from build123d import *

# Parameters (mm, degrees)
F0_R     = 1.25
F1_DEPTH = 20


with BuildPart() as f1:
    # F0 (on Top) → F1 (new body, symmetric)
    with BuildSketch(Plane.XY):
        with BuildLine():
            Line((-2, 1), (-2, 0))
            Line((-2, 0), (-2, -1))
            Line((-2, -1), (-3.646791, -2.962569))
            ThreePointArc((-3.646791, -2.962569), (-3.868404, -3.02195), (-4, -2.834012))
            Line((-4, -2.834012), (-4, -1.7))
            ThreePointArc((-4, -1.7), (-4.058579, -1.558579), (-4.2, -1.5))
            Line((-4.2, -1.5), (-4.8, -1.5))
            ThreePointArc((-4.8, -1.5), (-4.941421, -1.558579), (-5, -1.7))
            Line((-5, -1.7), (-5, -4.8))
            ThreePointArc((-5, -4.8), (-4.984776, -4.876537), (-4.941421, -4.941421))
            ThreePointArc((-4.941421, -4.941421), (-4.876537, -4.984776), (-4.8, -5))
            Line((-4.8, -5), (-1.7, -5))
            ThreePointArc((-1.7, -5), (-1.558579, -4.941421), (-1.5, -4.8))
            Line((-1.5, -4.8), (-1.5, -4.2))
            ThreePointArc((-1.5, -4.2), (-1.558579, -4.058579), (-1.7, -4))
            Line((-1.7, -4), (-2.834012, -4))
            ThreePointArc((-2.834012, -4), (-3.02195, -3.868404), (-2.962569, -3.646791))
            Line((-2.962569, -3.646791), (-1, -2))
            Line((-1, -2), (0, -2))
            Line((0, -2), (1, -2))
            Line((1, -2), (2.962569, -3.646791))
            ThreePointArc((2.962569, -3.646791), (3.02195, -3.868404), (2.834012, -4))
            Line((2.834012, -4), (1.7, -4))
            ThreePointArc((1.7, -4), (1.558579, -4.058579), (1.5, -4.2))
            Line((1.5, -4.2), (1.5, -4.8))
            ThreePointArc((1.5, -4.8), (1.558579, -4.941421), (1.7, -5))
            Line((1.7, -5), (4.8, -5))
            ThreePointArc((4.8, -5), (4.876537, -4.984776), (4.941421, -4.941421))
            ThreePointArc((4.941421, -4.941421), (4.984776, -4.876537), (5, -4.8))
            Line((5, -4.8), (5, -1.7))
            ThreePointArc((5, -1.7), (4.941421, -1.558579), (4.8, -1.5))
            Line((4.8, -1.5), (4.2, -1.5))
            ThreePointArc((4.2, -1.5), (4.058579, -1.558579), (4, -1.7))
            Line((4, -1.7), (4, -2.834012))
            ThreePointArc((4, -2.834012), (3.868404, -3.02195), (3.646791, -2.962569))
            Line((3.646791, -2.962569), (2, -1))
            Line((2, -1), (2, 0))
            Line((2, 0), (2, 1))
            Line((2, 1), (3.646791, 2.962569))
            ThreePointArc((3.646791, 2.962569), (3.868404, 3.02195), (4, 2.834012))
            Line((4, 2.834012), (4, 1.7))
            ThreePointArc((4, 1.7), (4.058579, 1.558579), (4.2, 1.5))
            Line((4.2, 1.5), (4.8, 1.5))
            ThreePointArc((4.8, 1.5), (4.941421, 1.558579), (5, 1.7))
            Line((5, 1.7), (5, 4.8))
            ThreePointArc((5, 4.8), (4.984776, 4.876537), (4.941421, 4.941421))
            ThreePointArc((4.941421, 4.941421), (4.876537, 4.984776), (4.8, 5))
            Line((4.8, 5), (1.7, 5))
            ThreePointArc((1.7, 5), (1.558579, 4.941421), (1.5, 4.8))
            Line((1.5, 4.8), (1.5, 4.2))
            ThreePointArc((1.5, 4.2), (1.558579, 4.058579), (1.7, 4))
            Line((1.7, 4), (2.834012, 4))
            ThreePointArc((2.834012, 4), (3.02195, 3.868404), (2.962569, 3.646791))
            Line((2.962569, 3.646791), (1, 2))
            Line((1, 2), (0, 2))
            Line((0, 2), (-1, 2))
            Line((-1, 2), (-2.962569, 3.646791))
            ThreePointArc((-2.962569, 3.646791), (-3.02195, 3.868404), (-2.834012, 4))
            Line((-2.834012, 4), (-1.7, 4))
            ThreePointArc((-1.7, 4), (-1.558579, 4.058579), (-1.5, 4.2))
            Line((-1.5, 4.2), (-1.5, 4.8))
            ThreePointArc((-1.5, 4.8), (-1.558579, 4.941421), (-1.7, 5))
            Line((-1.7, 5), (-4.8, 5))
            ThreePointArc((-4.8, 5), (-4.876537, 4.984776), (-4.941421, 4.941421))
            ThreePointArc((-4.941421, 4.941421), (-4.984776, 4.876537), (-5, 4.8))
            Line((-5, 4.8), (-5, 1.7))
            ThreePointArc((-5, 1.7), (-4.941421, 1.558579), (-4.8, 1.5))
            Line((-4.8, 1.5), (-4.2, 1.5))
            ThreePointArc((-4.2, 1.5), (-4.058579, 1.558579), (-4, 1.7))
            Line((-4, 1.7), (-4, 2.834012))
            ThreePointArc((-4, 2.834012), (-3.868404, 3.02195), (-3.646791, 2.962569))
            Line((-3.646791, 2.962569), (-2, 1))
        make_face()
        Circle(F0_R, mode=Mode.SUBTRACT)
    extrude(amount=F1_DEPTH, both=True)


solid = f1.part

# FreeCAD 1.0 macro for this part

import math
import FreeCAD as App
import Part
import Sketcher

V = App.Vector
Q = App.Units.Quantity

doc = App.newDocument("Part")
body = doc.addObject("PartDesign::Body", "Body")

sketch1 = body.newObject("Sketcher::SketchObject", "Sketch")
sketch1.AttachmentSupport = (doc.getObject("XY_Plane"), [""])
sketch1.MapMode = "FlatFace"
sketch1.addGeometry(Part.LineSegment(V(-2, 1, 0), V(-2, -1, 0)), False)
sketch1.addGeometry(Part.LineSegment(V(-2, -1, 0), V(-3.65, -2.96, 0)), False)
sketch1.addGeometry(Part.ArcOfCircle(Part.Circle(V(-3.8, -2.83, 0), V(0, 0, 1), 0.2), math.radians(-180), math.radians(-40)), False)
sketch1.addGeometry(Part.LineSegment(V(-4, -2.83, 0), V(-4, -1.7, 0)), False)
sketch1.addGeometry(Part.ArcOfCircle(Part.Circle(V(-4.2, -1.7, 0), V(0, 0, 1), 0.2), math.radians(0), math.radians(90)), False)
sketch1.addGeometry(Part.LineSegment(V(-4.2, -1.5, 0), V(-4.8, -1.5, 0)), False)
sketch1.addGeometry(Part.ArcOfCircle(Part.Circle(V(-4.8, -1.7, 0), V(0, 0, 1), 0.2), math.radians(90), math.radians(180)), False)
sketch1.addGeometry(Part.LineSegment(V(-5, -1.7, 0), V(-5, -4.8, 0)), False)
sketch1.addGeometry(Part.ArcOfCircle(Part.Circle(V(-4.8, -4.8, 0), V(0, 0, 1), 0.2), math.radians(180), math.radians(225)), False)
sketch1.addGeometry(Part.ArcOfCircle(Part.Circle(V(-4.8, -4.8, 0), V(0, 0, 1), 0.2), math.radians(-135), math.radians(-90)), False)
sketch1.addGeometry(Part.LineSegment(V(-4.8, -5, 0), V(-1.7, -5, 0)), False)
sketch1.addGeometry(Part.ArcOfCircle(Part.Circle(V(-1.7, -4.8, 0), V(0, 0, 1), 0.2), math.radians(-90), math.radians(0)), False)
sketch1.addGeometry(Part.LineSegment(V(-1.5, -4.8, 0), V(-1.5, -4.2, 0)), False)
sketch1.addGeometry(Part.ArcOfCircle(Part.Circle(V(-1.7, -4.2, 0), V(0, 0, 1), 0.2), math.radians(0), math.radians(90)), False)
sketch1.addGeometry(Part.LineSegment(V(-1.7, -4, 0), V(-2.83, -4, 0)), False)
sketch1.addGeometry(Part.ArcOfCircle(Part.Circle(V(-2.83, -3.8, 0), V(0, 0, 1), 0.2), math.radians(130), math.radians(270)), False)
sketch1.addGeometry(Part.LineSegment(V(-2.96, -3.65, 0), V(-1, -2, 0)), False)
sketch1.addGeometry(Part.LineSegment(V(-1, -2, 0), V(1, -2, 0)), False)
sketch1.addGeometry(Part.LineSegment(V(1, -2, 0), V(2.96, -3.65, 0)), False)
sketch1.addGeometry(Part.ArcOfCircle(Part.Circle(V(2.83, -3.8, 0), V(0, 0, 1), 0.2), math.radians(-90), math.radians(50)), False)
sketch1.addGeometry(Part.LineSegment(V(2.83, -4, 0), V(1.7, -4, 0)), False)
sketch1.addGeometry(Part.ArcOfCircle(Part.Circle(V(1.7, -4.2, 0), V(0, 0, 1), 0.2), math.radians(90), math.radians(180)), False)
sketch1.addGeometry(Part.LineSegment(V(1.5, -4.2, 0), V(1.5, -4.8, 0)), False)
sketch1.addGeometry(Part.ArcOfCircle(Part.Circle(V(1.7, -4.8, 0), V(0, 0, 1), 0.2), math.radians(-180), math.radians(-90)), False)
sketch1.addGeometry(Part.LineSegment(V(1.7, -5, 0), V(4.8, -5, 0)), False)
sketch1.addGeometry(Part.ArcOfCircle(Part.Circle(V(4.8, -4.8, 0), V(0, 0, 1), 0.2), math.radians(-90), math.radians(-45)), False)
sketch1.addGeometry(Part.ArcOfCircle(Part.Circle(V(4.8, -4.8, 0), V(0, 0, 1), 0.2), math.radians(-45), math.radians(0)), False)
sketch1.addGeometry(Part.LineSegment(V(5, -4.8, 0), V(5, -1.7, 0)), False)
sketch1.addGeometry(Part.ArcOfCircle(Part.Circle(V(4.8, -1.7, 0), V(0, 0, 1), 0.2), math.radians(0), math.radians(90)), False)
sketch1.addGeometry(Part.LineSegment(V(4.8, -1.5, 0), V(4.2, -1.5, 0)), False)
sketch1.addGeometry(Part.ArcOfCircle(Part.Circle(V(4.2, -1.7, 0), V(0, 0, 1), 0.2), math.radians(90), math.radians(180)), False)
sketch1.addGeometry(Part.LineSegment(V(4, -1.7, 0), V(4, -2.83, 0)), False)
sketch1.addGeometry(Part.ArcOfCircle(Part.Circle(V(3.8, -2.83, 0), V(0, 0, 1), 0.2), math.radians(-140), math.radians(0)), False)
sketch1.addGeometry(Part.LineSegment(V(3.65, -2.96, 0), V(2, -1, 0)), False)
sketch1.addGeometry(Part.LineSegment(V(2, -1, 0), V(2, 1, 0)), False)
sketch1.addGeometry(Part.LineSegment(V(2, 1, 0), V(3.65, 2.96, 0)), False)
sketch1.addGeometry(Part.ArcOfCircle(Part.Circle(V(3.8, 2.83, 0), V(0, 0, 1), 0.2), math.radians(0), math.radians(140)), False)
sketch1.addGeometry(Part.LineSegment(V(4, 2.83, 0), V(4, 1.7, 0)), False)
sketch1.addGeometry(Part.ArcOfCircle(Part.Circle(V(4.2, 1.7, 0), V(0, 0, 1), 0.2), math.radians(-180), math.radians(-90)), False)
sketch1.addGeometry(Part.LineSegment(V(4.2, 1.5, 0), V(4.8, 1.5, 0)), False)
sketch1.addGeometry(Part.ArcOfCircle(Part.Circle(V(4.8, 1.7, 0), V(0, 0, 1), 0.2), math.radians(-90), math.radians(0)), False)
sketch1.addGeometry(Part.LineSegment(V(5, 1.7, 0), V(5, 4.8, 0)), False)
sketch1.addGeometry(Part.ArcOfCircle(Part.Circle(V(4.8, 4.8, 0), V(0, 0, 1), 0.2), math.radians(0), math.radians(45)), False)
sketch1.addGeometry(Part.ArcOfCircle(Part.Circle(V(4.8, 4.8, 0), V(0, 0, 1), 0.2), math.radians(45), math.radians(90)), False)
sketch1.addGeometry(Part.LineSegment(V(4.8, 5, 0), V(1.7, 5, 0)), False)
sketch1.addGeometry(Part.ArcOfCircle(Part.Circle(V(1.7, 4.8, 0), V(0, 0, 1), 0.2), math.radians(90), math.radians(180)), False)
sketch1.addGeometry(Part.LineSegment(V(1.5, 4.8, 0), V(1.5, 4.2, 0)), False)
sketch1.addGeometry(Part.ArcOfCircle(Part.Circle(V(1.7, 4.2, 0), V(0, 0, 1), 0.2), math.radians(-180), math.radians(-90)), False)
sketch1.addGeometry(Part.LineSegment(V(1.7, 4, 0), V(2.83, 4, 0)), False)
sketch1.addGeometry(Part.ArcOfCircle(Part.Circle(V(2.83, 3.8, 0), V(0, 0, 1), 0.2), math.radians(-50), math.radians(90)), False)
sketch1.addGeometry(Part.LineSegment(V(2.96, 3.65, 0), V(1, 2, 0)), False)
sketch1.addGeometry(Part.LineSegment(V(1, 2, 0), V(-1, 2, 0)), False)
sketch1.addGeometry(Part.LineSegment(V(-1, 2, 0), V(-2.96, 3.65, 0)), False)
sketch1.addGeometry(Part.ArcOfCircle(Part.Circle(V(-2.83, 3.8, 0), V(0, 0, 1), 0.2), math.radians(90), math.radians(230)), False)
sketch1.addGeometry(Part.LineSegment(V(-2.83, 4, 0), V(-1.7, 4, 0)), False)
sketch1.addGeometry(Part.ArcOfCircle(Part.Circle(V(-1.7, 4.2, 0), V(0, 0, 1), 0.2), math.radians(-90), math.radians(0)), False)
sketch1.addGeometry(Part.LineSegment(V(-1.5, 4.2, 0), V(-1.5, 4.8, 0)), False)
sketch1.addGeometry(Part.ArcOfCircle(Part.Circle(V(-1.7, 4.8, 0), V(0, 0, 1), 0.2), math.radians(0), math.radians(90)), False)
sketch1.addGeometry(Part.LineSegment(V(-1.7, 5, 0), V(-4.8, 5, 0)), False)
sketch1.addGeometry(Part.ArcOfCircle(Part.Circle(V(-4.8, 4.8, 0), V(0, 0, 1), 0.2), math.radians(90), math.radians(135)), False)
sketch1.addGeometry(Part.ArcOfCircle(Part.Circle(V(-4.8, 4.8, 0), V(0, 0, 1), 0.2), math.radians(135), math.radians(180)), False)
sketch1.addGeometry(Part.LineSegment(V(-5, 4.8, 0), V(-5, 1.7, 0)), False)
sketch1.addGeometry(Part.ArcOfCircle(Part.Circle(V(-4.8, 1.7, 0), V(0, 0, 1), 0.2), math.radians(-180), math.radians(-90)), False)
sketch1.addGeometry(Part.LineSegment(V(-4.8, 1.5, 0), V(-4.2, 1.5, 0)), False)
sketch1.addGeometry(Part.ArcOfCircle(Part.Circle(V(-4.2, 1.7, 0), V(0, 0, 1), 0.2), math.radians(-90), math.radians(0)), False)
sketch1.addGeometry(Part.LineSegment(V(-4, 1.7, 0), V(-4, 2.83, 0)), False)
sketch1.addGeometry(Part.ArcOfCircle(Part.Circle(V(-3.8, 2.83, 0), V(0, 0, 1), 0.2), math.radians(40), math.radians(180)), False)
sketch1.addGeometry(Part.LineSegment(V(-3.65, 2.96, 0), V(-2, 1, 0)), False)
sketch1.addGeometry(Part.Circle(V(0, 0, 0), V(0, 0, 1), 1.25), False)
sketch1.addConstraint(Sketcher.Constraint("Coincident", 0, 2, 1, 1))
sketch1.addConstraint(Sketcher.Constraint("Tangent", 1, 2, 2, 2))
sketch1.addConstraint(Sketcher.Constraint("Coincident", 2, 1, 3, 1))
sketch1.addConstraint(Sketcher.Constraint("Coincident", 3, 2, 4, 1))
sketch1.addConstraint(Sketcher.Constraint("Coincident", 4, 2, 5, 1))
sketch1.addConstraint(Sketcher.Constraint("Coincident", 5, 2, 6, 1))
sketch1.addConstraint(Sketcher.Constraint("Coincident", 6, 2, 7, 1))
sketch1.addConstraint(Sketcher.Constraint("Coincident", 7, 2, 8, 1))
sketch1.addConstraint(Sketcher.Constraint("Coincident", 8, 2, 9, 1))
sketch1.addConstraint(Sketcher.Constraint("Coincident", 9, 2, 10, 1))
sketch1.addConstraint(Sketcher.Constraint("Coincident", 10, 2, 11, 1))
sketch1.addConstraint(Sketcher.Constraint("Coincident", 11, 2, 12, 1))
sketch1.addConstraint(Sketcher.Constraint("Coincident", 12, 2, 13, 1))
sketch1.addConstraint(Sketcher.Constraint("Coincident", 13, 2, 14, 1))
sketch1.addConstraint(Sketcher.Constraint("Coincident", 14, 2, 15, 2))
sketch1.addConstraint(Sketcher.Constraint("Tangent", 15, 1, 16, 1))
sketch1.addConstraint(Sketcher.Constraint("Coincident", 16, 2, 17, 1))
sketch1.addConstraint(Sketcher.Constraint("Coincident", 17, 2, 18, 1))
sketch1.addConstraint(Sketcher.Constraint("Tangent", 18, 2, 19, 2))
sketch1.addConstraint(Sketcher.Constraint("Coincident", 19, 1, 20, 1))
sketch1.addConstraint(Sketcher.Constraint("Coincident", 20, 2, 21, 1))
sketch1.addConstraint(Sketcher.Constraint("Coincident", 21, 2, 22, 1))
sketch1.addConstraint(Sketcher.Constraint("Coincident", 22, 2, 23, 1))
sketch1.addConstraint(Sketcher.Constraint("Coincident", 23, 2, 24, 1))
sketch1.addConstraint(Sketcher.Constraint("Coincident", 24, 2, 25, 1))
sketch1.addConstraint(Sketcher.Constraint("Coincident", 25, 2, 26, 1))
sketch1.addConstraint(Sketcher.Constraint("Coincident", 26, 2, 27, 1))
sketch1.addConstraint(Sketcher.Constraint("Coincident", 27, 2, 28, 1))
sketch1.addConstraint(Sketcher.Constraint("Coincident", 28, 2, 29, 1))
sketch1.addConstraint(Sketcher.Constraint("Coincident", 29, 2, 30, 1))
sketch1.addConstraint(Sketcher.Constraint("Coincident", 30, 2, 31, 1))
sketch1.addConstraint(Sketcher.Constraint("Coincident", 31, 2, 32, 2))
sketch1.addConstraint(Sketcher.Constraint("Tangent", 32, 1, 33, 1))
sketch1.addConstraint(Sketcher.Constraint("Coincident", 33, 2, 34, 1))
sketch1.addConstraint(Sketcher.Constraint("Coincident", 34, 2, 35, 1))
sketch1.addConstraint(Sketcher.Constraint("Tangent", 35, 2, 36, 2))
sketch1.addConstraint(Sketcher.Constraint("Coincident", 36, 1, 37, 1))
sketch1.addConstraint(Sketcher.Constraint("Coincident", 37, 2, 38, 1))
sketch1.addConstraint(Sketcher.Constraint("Coincident", 38, 2, 39, 1))
sketch1.addConstraint(Sketcher.Constraint("Coincident", 39, 2, 40, 1))
sketch1.addConstraint(Sketcher.Constraint("Coincident", 40, 2, 41, 1))
sketch1.addConstraint(Sketcher.Constraint("Coincident", 41, 2, 42, 1))
sketch1.addConstraint(Sketcher.Constraint("Coincident", 42, 2, 43, 1))
sketch1.addConstraint(Sketcher.Constraint("Coincident", 43, 2, 44, 1))
sketch1.addConstraint(Sketcher.Constraint("Coincident", 44, 2, 45, 1))
sketch1.addConstraint(Sketcher.Constraint("Coincident", 45, 2, 46, 1))
sketch1.addConstraint(Sketcher.Constraint("Coincident", 46, 2, 47, 1))
sketch1.addConstraint(Sketcher.Constraint("Coincident", 47, 2, 48, 1))
sketch1.addConstraint(Sketcher.Constraint("Coincident", 48, 2, 49, 2))
sketch1.addConstraint(Sketcher.Constraint("Tangent", 49, 1, 50, 1))
sketch1.addConstraint(Sketcher.Constraint("Coincident", 50, 2, 51, 1))
sketch1.addConstraint(Sketcher.Constraint("Coincident", 51, 2, 52, 1))
sketch1.addConstraint(Sketcher.Constraint("Tangent", 52, 2, 53, 2))
sketch1.addConstraint(Sketcher.Constraint("Coincident", 53, 1, 54, 1))
sketch1.addConstraint(Sketcher.Constraint("Coincident", 54, 2, 55, 1))
sketch1.addConstraint(Sketcher.Constraint("Coincident", 55, 2, 56, 1))
sketch1.addConstraint(Sketcher.Constraint("Coincident", 56, 2, 57, 1))
sketch1.addConstraint(Sketcher.Constraint("Coincident", 57, 2, 58, 1))
sketch1.addConstraint(Sketcher.Constraint("Coincident", 58, 2, 59, 1))
sketch1.addConstraint(Sketcher.Constraint("Coincident", 59, 2, 60, 1))
sketch1.addConstraint(Sketcher.Constraint("Coincident", 60, 2, 61, 1))
sketch1.addConstraint(Sketcher.Constraint("Coincident", 61, 2, 62, 1))
sketch1.addConstraint(Sketcher.Constraint("Coincident", 62, 2, 63, 1))
sketch1.addConstraint(Sketcher.Constraint("Coincident", 63, 2, 64, 1))
sketch1.addConstraint(Sketcher.Constraint("Coincident", 64, 2, 65, 1))
sketch1.addConstraint(Sketcher.Constraint("Coincident", 65, 2, 66, 2))
sketch1.addConstraint(Sketcher.Constraint("Tangent", 66, 1, 67, 1))
sketch1.addConstraint(Sketcher.Constraint("Coincident", 67, 2, 0, 1))
sketch1.addConstraint(Sketcher.Constraint("Vertical", 0))
sketch1.addConstraint(Sketcher.Constraint("Vertical", 3))
sketch1.addConstraint(Sketcher.Constraint("Horizontal", 5))
sketch1.addConstraint(Sketcher.Constraint("Vertical", 7))
sketch1.addConstraint(Sketcher.Constraint("Horizontal", 10))
sketch1.addConstraint(Sketcher.Constraint("Vertical", 12))
sketch1.addConstraint(Sketcher.Constraint("Horizontal", 14))
sketch1.addConstraint(Sketcher.Constraint("Horizontal", 17))
sketch1.addConstraint(Sketcher.Constraint("Horizontal", 20))
sketch1.addConstraint(Sketcher.Constraint("Vertical", 22))
sketch1.addConstraint(Sketcher.Constraint("Horizontal", 24))
sketch1.addConstraint(Sketcher.Constraint("Vertical", 27))
sketch1.addConstraint(Sketcher.Constraint("Horizontal", 29))
sketch1.addConstraint(Sketcher.Constraint("Vertical", 31))
sketch1.addConstraint(Sketcher.Constraint("Vertical", 34))
sketch1.addConstraint(Sketcher.Constraint("Vertical", 37))
sketch1.addConstraint(Sketcher.Constraint("Horizontal", 39))
sketch1.addConstraint(Sketcher.Constraint("Vertical", 41))
sketch1.addConstraint(Sketcher.Constraint("Horizontal", 44))
sketch1.addConstraint(Sketcher.Constraint("Vertical", 46))
sketch1.addConstraint(Sketcher.Constraint("Horizontal", 48))
sketch1.addConstraint(Sketcher.Constraint("Horizontal", 51))
sketch1.addConstraint(Sketcher.Constraint("Horizontal", 54))
sketch1.addConstraint(Sketcher.Constraint("Vertical", 56))
sketch1.addConstraint(Sketcher.Constraint("Horizontal", 58))
sketch1.addConstraint(Sketcher.Constraint("Vertical", 61))
sketch1.addConstraint(Sketcher.Constraint("Horizontal", 63))
sketch1.addConstraint(Sketcher.Constraint("Vertical", 65))
sketch1.addConstraint(Sketcher.Constraint("Coincident", 68, 3, -1, 1))
sketch1.addConstraint(Sketcher.Constraint("Coincident", 9, 3, 8, 3))
sketch1.addConstraint(Sketcher.Constraint("Coincident", 26, 3, 25, 3))
sketch1.addConstraint(Sketcher.Constraint("Coincident", 43, 3, 42, 3))
sketch1.addConstraint(Sketcher.Constraint("Coincident", 60, 3, 59, 3))
sketch1.addConstraint(Sketcher.Constraint("Equal", 2, 4))
sketch1.addConstraint(Sketcher.Constraint("Equal", 4, 6))
sketch1.addConstraint(Sketcher.Constraint("Equal", 6, 11))
sketch1.addConstraint(Sketcher.Constraint("Equal", 11, 13))
sketch1.addConstraint(Sketcher.Constraint("Equal", 13, 15))
sketch1.addConstraint(Sketcher.Constraint("Equal", 15, 19))
sketch1.addConstraint(Sketcher.Constraint("Equal", 19, 21))
sketch1.addConstraint(Sketcher.Constraint("Equal", 21, 23))
sketch1.addConstraint(Sketcher.Constraint("Equal", 9, 25))
sketch1.addConstraint(Sketcher.Constraint("Equal", 23, 28))
sketch1.addConstraint(Sketcher.Constraint("Equal", 28, 30))
sketch1.addConstraint(Sketcher.Constraint("Equal", 30, 32))
sketch1.addConstraint(Sketcher.Constraint("Equal", 32, 36))
sketch1.addConstraint(Sketcher.Constraint("Equal", 36, 38))
sketch1.addConstraint(Sketcher.Constraint("Equal", 38, 40))
sketch1.addConstraint(Sketcher.Constraint("Equal", 26, 42))
sketch1.addConstraint(Sketcher.Constraint("Equal", 40, 45))
sketch1.addConstraint(Sketcher.Constraint("Equal", 45, 47))
sketch1.addConstraint(Sketcher.Constraint("Equal", 47, 49))
sketch1.addConstraint(Sketcher.Constraint("Equal", 49, 53))
sketch1.addConstraint(Sketcher.Constraint("Equal", 53, 55))
sketch1.addConstraint(Sketcher.Constraint("Equal", 55, 57))
sketch1.addConstraint(Sketcher.Constraint("Equal", 43, 59))
sketch1.addConstraint(Sketcher.Constraint("Equal", 57, 62))
sketch1.addConstraint(Sketcher.Constraint("Equal", 62, 64))
sketch1.addConstraint(Sketcher.Constraint("Equal", 64, 66))
sketch1.addConstraint(Sketcher.Constraint("Symmetric", 2, 3, 36, 3, -1, 1))
sketch1.addConstraint(Sketcher.Constraint("Symmetric", 6, 3, 40, 3, -1, 1))
sketch1.addConstraint(Sketcher.Constraint("Symmetric", 11, 3, 45, 3, -1, 1))
sketch1.addConstraint(Sketcher.Constraint("Symmetric", 15, 3, 49, 3, -1, 1))
sketch1.addConstraint(Sketcher.Constraint("Symmetric", 19, 3, 53, 3, -1, 1))
sketch1.addConstraint(Sketcher.Constraint("Symmetric", 23, 3, 57, 3, -1, 1))
sketch1.addConstraint(Sketcher.Constraint("Symmetric", 28, 3, 62, 3, -1, 1))
sketch1.addConstraint(Sketcher.Constraint("Symmetric", 32, 3, 66, 3, -1, 1))
sketch1.addConstraint(Sketcher.Constraint("Symmetric", 0, 2, 34, 2, -1, 1))
sketch1.addConstraint(Sketcher.Constraint("Symmetric", 16, 2, 50, 2, -1, 1))
sketch1.addConstraint(Sketcher.Constraint("Symmetric", 15, 3, 19, 3, -2))
sketch1.addConstraint(Sketcher.Constraint("Symmetric", 11, 3, 23, 3, -2))
sketch1.addConstraint(Sketcher.Constraint("Symmetric", 6, 3, 28, 3, -2))
sketch1.addConstraint(Sketcher.Constraint("Symmetric", 2, 3, 32, 3, -2))
sketch1.addConstraint(Sketcher.Constraint("Perpendicular", 1, 18))
sketch1.addConstraint(Sketcher.Constraint("Perpendicular", 16, 33))
sketch1.addConstraint(Sketcher.Constraint("Perpendicular", 35, 52))
sketch1.addConstraint(Sketcher.Constraint("Perpendicular", 50, 67))
sketch1.addConstraint(Sketcher.Constraint("Horizontal", 32, 3, 2, 1))
sketch1.addConstraint(Sketcher.Constraint("Horizontal", 30, 3, 3, 2))
sketch1.addConstraint(Sketcher.Constraint("Horizontal", 3, 2, 6, 2))
sketch1.addConstraint(Sketcher.Constraint("Horizontal", 26, 3, 7, 2))
sketch1.addConstraint(Sketcher.Constraint("Horizontal", 7, 2, 11, 2))
sketch1.addConstraint(Sketcher.Constraint("Horizontal", 21, 3, 12, 2))
sketch1.addConstraint(Sketcher.Constraint("Horizontal", 15, 1, 18, 2))
sketch1.addConstraint(Sketcher.Constraint("Horizontal", 12, 2, 21, 2))
sketch1.addConstraint(Sketcher.Constraint("Horizontal", 11, 2, 22, 2))
sketch1.addConstraint(Sketcher.Constraint("Horizontal", 8, 2, 25, 2))
sketch1.addConstraint(Sketcher.Constraint("Horizontal", 22, 2, 26, 2))
sketch1.addConstraint(Sketcher.Constraint("Horizontal", 6, 2, 27, 2))
sketch1.addConstraint(Sketcher.Constraint("Horizontal", 27, 2, 30, 2))
sketch1.addConstraint(Sketcher.Constraint("Horizontal", 2, 1, 31, 2))
sketch1.addConstraint(Sketcher.Constraint("Horizontal", 66, 3, 36, 1))
sketch1.addConstraint(Sketcher.Constraint("Horizontal", 64, 3, 37, 2))
sketch1.addConstraint(Sketcher.Constraint("Horizontal", 37, 2, 40, 2))
sketch1.addConstraint(Sketcher.Constraint("Horizontal", 60, 3, 41, 2))
sketch1.addConstraint(Sketcher.Constraint("Horizontal", 41, 2, 45, 2))
sketch1.addConstraint(Sketcher.Constraint("Horizontal", 55, 3, 46, 2))
sketch1.addConstraint(Sketcher.Constraint("Horizontal", 46, 2, 55, 2))
sketch1.addConstraint(Sketcher.Constraint("Horizontal", 45, 2, 56, 2))
sketch1.addConstraint(Sketcher.Constraint("Horizontal", 42, 2, 59, 2))
sketch1.addConstraint(Sketcher.Constraint("Horizontal", 56, 2, 60, 2))
sketch1.addConstraint(Sketcher.Constraint("Horizontal", 40, 2, 61, 2))
sketch1.addConstraint(Sketcher.Constraint("Horizontal", 61, 2, 64, 2))
sketch1.addConstraint(Sketcher.Constraint("Horizontal", 36, 1, 65, 2))
sketch1.addConstraint(Sketcher.Constraint("Vertical", 64, 3, 4, 2))
sketch1.addConstraint(Sketcher.Constraint("Vertical", 62, 3, 5, 2))
sketch1.addConstraint(Sketcher.Constraint("Vertical", 5, 2, 9, 2))
sketch1.addConstraint(Sketcher.Constraint("Vertical", 57, 3, 10, 2))
sketch1.addConstraint(Sketcher.Constraint("Vertical", 10, 2, 13, 2))
sketch1.addConstraint(Sketcher.Constraint("Vertical", 53, 3, 14, 2))
sketch1.addConstraint(Sketcher.Constraint("Vertical", 49, 3, 19, 1))
sketch1.addConstraint(Sketcher.Constraint("Vertical", 47, 3, 20, 2))
sketch1.addConstraint(Sketcher.Constraint("Vertical", 20, 2, 23, 2))
sketch1.addConstraint(Sketcher.Constraint("Vertical", 43, 3, 24, 2))
sketch1.addConstraint(Sketcher.Constraint("Vertical", 24, 2, 28, 2))
sketch1.addConstraint(Sketcher.Constraint("Vertical", 38, 3, 29, 2))
sketch1.addConstraint(Sketcher.Constraint("Vertical", 29, 2, 38, 2))
sketch1.addConstraint(Sketcher.Constraint("Vertical", 28, 2, 39, 2))
sketch1.addConstraint(Sketcher.Constraint("Vertical", 25, 2, 42, 2))
sketch1.addConstraint(Sketcher.Constraint("Vertical", 39, 2, 43, 2))
sketch1.addConstraint(Sketcher.Constraint("Vertical", 23, 2, 44, 2))
sketch1.addConstraint(Sketcher.Constraint("Vertical", 44, 2, 47, 2))
sketch1.addConstraint(Sketcher.Constraint("Vertical", 19, 1, 48, 2))
sketch1.addConstraint(Sketcher.Constraint("Vertical", 14, 2, 53, 1))
sketch1.addConstraint(Sketcher.Constraint("Vertical", 13, 2, 54, 2))
sketch1.addConstraint(Sketcher.Constraint("Vertical", 54, 2, 57, 2))
sketch1.addConstraint(Sketcher.Constraint("Vertical", 9, 2, 58, 2))
sketch1.addConstraint(Sketcher.Constraint("Vertical", 58, 2, 62, 2))
sketch1.addConstraint(Sketcher.Constraint("Vertical", 4, 2, 63, 2))
sketch1.addConstraint(Sketcher.Constraint("Equal", 10, 24))
sketch1.addConstraint(Sketcher.Constraint("Equal", 51, 0))
sketch1.addConstraint(Sketcher.Constraint("Equal", 54, 3))
sketch1.addConstraint(Sketcher.Constraint("Equal", 58, 7))
sketch1.addConstraint(Sketcher.Constraint("Equal", 63, 12))
sketch1.addConstraint(Sketcher.Constraint("Equal", 1, 16))
sketch1.addConstraint(Sketcher.Constraint("Diameter", 68, Q("2.5 mm")))
sketch1.addConstraint(Sketcher.Constraint("Radius", 2, Q("0.2 mm")))
sketch1.addConstraint(Sketcher.Constraint("DistanceX", 17, 1, 17, 2, Q("2 mm")))
sketch1.addConstraint(Sketcher.Constraint("Angle", 1, Q("-130.000001 deg")))
sketch1.addConstraint(Sketcher.Constraint("DistanceX", 5, 2, 5, 1, Q("0.6 mm")))
sketch1.addConstraint(Sketcher.Constraint("DistanceX", 10, 1, 10, 2, Q("3.1 mm")))
sketch1.addConstraint(Sketcher.Constraint("DistanceX", 0, 2, -1, 1, Q("2 mm")))
sketch1.addConstraint(Sketcher.Constraint("DistanceX", 2, 1, -1, 1, Q("4 mm")))
sketch1.addConstraint(Sketcher.Constraint("DistanceX", 8, 2, -1, 1, Q("4.941421 mm")))
pad1 = body.newObject("PartDesign::Pad", "Pad")
pad1.Profile = sketch1
pad1.Length = 40
pad1.Midplane = True

doc.recompute()
